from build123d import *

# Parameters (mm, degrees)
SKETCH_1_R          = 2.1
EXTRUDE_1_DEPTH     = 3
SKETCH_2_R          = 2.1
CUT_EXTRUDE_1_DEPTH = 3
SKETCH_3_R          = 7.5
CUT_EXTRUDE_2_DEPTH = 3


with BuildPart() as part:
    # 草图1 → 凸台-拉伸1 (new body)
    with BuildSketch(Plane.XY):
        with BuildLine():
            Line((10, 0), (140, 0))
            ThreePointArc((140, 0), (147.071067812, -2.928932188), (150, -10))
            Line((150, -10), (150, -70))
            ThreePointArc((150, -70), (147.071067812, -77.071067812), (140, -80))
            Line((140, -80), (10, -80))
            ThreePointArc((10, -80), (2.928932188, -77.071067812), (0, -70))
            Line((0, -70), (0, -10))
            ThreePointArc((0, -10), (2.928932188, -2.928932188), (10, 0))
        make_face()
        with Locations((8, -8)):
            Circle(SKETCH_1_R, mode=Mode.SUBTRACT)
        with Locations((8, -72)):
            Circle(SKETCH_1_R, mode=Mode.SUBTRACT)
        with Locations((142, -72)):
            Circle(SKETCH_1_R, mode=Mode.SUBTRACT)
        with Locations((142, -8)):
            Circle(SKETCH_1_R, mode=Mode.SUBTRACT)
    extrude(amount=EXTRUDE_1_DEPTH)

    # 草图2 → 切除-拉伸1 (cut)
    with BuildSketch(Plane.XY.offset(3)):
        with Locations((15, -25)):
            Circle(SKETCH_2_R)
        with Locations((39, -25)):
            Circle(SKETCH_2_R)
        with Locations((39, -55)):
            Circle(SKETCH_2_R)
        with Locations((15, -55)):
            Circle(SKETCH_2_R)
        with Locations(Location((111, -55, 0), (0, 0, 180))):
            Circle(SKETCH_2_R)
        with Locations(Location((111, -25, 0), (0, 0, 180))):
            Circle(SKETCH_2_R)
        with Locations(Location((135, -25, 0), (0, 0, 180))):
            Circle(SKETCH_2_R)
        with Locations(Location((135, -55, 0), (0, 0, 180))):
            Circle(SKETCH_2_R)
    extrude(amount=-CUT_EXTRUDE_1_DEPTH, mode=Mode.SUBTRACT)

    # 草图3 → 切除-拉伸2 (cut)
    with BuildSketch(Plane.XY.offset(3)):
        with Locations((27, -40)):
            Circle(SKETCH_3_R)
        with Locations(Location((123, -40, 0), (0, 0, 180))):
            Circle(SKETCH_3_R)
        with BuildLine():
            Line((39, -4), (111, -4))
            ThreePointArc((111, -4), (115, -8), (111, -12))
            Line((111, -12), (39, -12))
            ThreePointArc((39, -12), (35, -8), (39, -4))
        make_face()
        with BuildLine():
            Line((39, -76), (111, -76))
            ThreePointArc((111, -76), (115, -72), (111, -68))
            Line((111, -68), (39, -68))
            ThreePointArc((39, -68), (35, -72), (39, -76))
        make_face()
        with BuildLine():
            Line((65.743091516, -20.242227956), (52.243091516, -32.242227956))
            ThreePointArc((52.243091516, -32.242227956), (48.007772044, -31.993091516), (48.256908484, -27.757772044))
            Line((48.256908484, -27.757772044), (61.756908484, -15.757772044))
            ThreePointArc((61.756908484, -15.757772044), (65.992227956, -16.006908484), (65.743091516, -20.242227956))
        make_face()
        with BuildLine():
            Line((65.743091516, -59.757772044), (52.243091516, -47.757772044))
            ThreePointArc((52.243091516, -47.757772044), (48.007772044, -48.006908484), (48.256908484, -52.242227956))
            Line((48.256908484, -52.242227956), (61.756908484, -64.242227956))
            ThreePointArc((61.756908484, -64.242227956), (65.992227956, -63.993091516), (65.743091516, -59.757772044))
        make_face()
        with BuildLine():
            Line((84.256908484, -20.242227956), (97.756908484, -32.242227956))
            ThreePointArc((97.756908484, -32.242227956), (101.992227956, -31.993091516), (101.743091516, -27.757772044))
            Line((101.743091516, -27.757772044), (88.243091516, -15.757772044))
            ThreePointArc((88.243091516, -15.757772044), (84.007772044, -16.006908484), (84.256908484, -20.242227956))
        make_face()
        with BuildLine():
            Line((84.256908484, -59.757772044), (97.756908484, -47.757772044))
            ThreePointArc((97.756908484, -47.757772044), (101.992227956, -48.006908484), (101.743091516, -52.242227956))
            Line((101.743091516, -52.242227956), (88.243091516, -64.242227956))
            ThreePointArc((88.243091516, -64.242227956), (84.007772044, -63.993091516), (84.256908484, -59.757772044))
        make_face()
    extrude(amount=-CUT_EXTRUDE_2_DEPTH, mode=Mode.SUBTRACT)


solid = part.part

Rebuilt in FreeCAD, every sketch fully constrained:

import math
import FreeCAD as App
import Part
import Sketcher

doc = App.newDocument("Part")
body = doc.addObject("PartDesign::Body", "Body")

# Sketch on XY plane
sketch1 = doc.addObject("Sketcher::SketchObject", "Sketch")
body.addObject(sketch1)
sketch1.AttachmentSupport = (doc.XY_Plane, [""])
sketch1.MapMode = "FlatFace"
sketch1.addGeometry([
    Part.LineSegment(App.Vector(140, 0, 0), App.Vector(10, 0, 0)),  # 0
    Part.ArcOfCircle(Part.Circle(App.Vector(10, -10, 0), App.Vector(0, 0, 1), 10), math.radians(90), math.radians(180)),  # 1
    Part.LineSegment(App.Vector(0, -10, 0), App.Vector(0, -70, 0)),  # 2
    Part.ArcOfCircle(Part.Circle(App.Vector(10, -70, 0), App.Vector(0, 0, 1), 10), math.radians(180), math.radians(270)),  # 3
    Part.LineSegment(App.Vector(10, -80, 0), App.Vector(140, -80, 0)),  # 4
    Part.ArcOfCircle(Part.Circle(App.Vector(140, -70, 0), App.Vector(0, 0, 1), 10), math.radians(-90), math.radians(0)),  # 5
    Part.LineSegment(App.Vector(150, -70, 0), App.Vector(150, -10, 0)),  # 6
    Part.ArcOfCircle(Part.Circle(App.Vector(140, -10, 0), App.Vector(0, 0, 1), 10), math.radians(0), math.radians(90)),  # 7
    Part.Circle(App.Vector(142, -72, 0), App.Vector(0, 0, 1), 2.1),  # 8
    Part.Circle(App.Vector(8, -72, 0), App.Vector(0, 0, 1), 2.1),  # 9
    Part.Circle(App.Vector(142, -8, 0), App.Vector(0, 0, 1), 2.1),  # 10
    Part.Circle(App.Vector(8, -8, 0), App.Vector(0, 0, 1), 2.1),  # 11
], False)
sketch1.addConstraint([
    Sketcher.Constraint("Tangent", 0, 2, 1, 1),
    Sketcher.Constraint("Tangent", 1, 2, 2, 1),
    Sketcher.Constraint("Tangent", 2, 2, 3, 1),
    Sketcher.Constraint("Tangent", 3, 2, 4, 1),
    Sketcher.Constraint("Tangent", 4, 2, 5, 1),
    Sketcher.Constraint("Tangent", 5, 2, 6, 1),
    Sketcher.Constraint("Tangent", 6, 2, 7, 1),
    Sketcher.Constraint("Tangent", 7, 2, 0, 1),
    Sketcher.Constraint("Horizontal", 0),
    Sketcher.Constraint("Vertical", 2),
    Sketcher.Constraint("Horizontal", 4),
    Sketcher.Constraint("Vertical", 6),
    Sketcher.Constraint("Equal", 1, 3),
    Sketcher.Constraint("Equal", 3, 5),
    Sketcher.Constraint("Equal", 5, 7),
    Sketcher.Constraint("Equal", 8, 9),
    Sketcher.Constraint("Equal", 9, 10),
    Sketcher.Constraint("Equal", 10, 11),
    Sketcher.Constraint("PointOnObject", 0, 2, -1),
    Sketcher.Constraint("PointOnObject", 1, 2, -2),
    Sketcher.Constraint("Horizontal", 8, 3, 9, 3),
    Sketcher.Constraint("Horizontal", 10, 3, 11, 3),
    Sketcher.Constraint("Vertical", 8, 3, 10, 3),
    Sketcher.Constraint("Vertical", 9, 3, 11, 3),
    Sketcher.Constraint("Radius", 1, 10.0),
    Sketcher.Constraint("Diameter", 8, 4.2),
    Sketcher.Constraint("DistanceX", 0, 2, 0, 1, 130.0),
    Sketcher.Constraint("DistanceY", 2, 2, 2, 1, 60.0),
    Sketcher.Constraint("DistanceX", -1, 1, 8, 3, 142.0),
    Sketcher.Constraint("DistanceY", 8, 3, -1, 1, 72.0),
    Sketcher.Constraint("DistanceX", -1, 1, 9, 3, 8.0),
    Sketcher.Constraint("DistanceY", 10, 3, -1, 1, 8.0),
])
pad1 = doc.addObject("PartDesign::Pad", "Pad")
body.addObject(pad1)
pad1.Profile = sketch1
pad1.Length = 3

# Sketch on XY plane
sketch2 = doc.addObject("Sketcher::SketchObject", "Sketch001")
body.addObject(sketch2)
sketch2.AttachmentSupport = (doc.XY_Plane, [""])
sketch2.MapMode = "FlatFace"
sketch2.AttachmentOffset = App.Placement(App.Vector(0, 0, 3), App.Rotation())
sketch2.addGeometry([
    Part.Circle(App.Vector(15, -25, 0), App.Vector(0, 0, 1), 2.1),  # 0
    Part.Circle(App.Vector(39, -25, 0), App.Vector(0, 0, 1), 2.1),  # 1
    Part.Circle(App.Vector(39, -55, 0), App.Vector(0, 0, 1), 2.1),  # 2
    Part.Circle(App.Vector(15, -55, 0), App.Vector(0, 0, 1), 2.1),  # 3
    Part.Circle(App.Vector(111, -55, 0), App.Vector(0, 0, 1), 2.1),  # 4
    Part.Circle(App.Vector(111, -25, 0), App.Vector(0, 0, 1), 2.1),  # 5
    Part.Circle(App.Vector(135, -25, 0), App.Vector(0, 0, 1), 2.1),  # 6
    Part.Circle(App.Vector(135, -55, 0), App.Vector(0, 0, 1), 2.1),  # 7
], False)
sketch2.addConstraint([
    Sketcher.Constraint("Equal", 0, 1),
    Sketcher.Constraint("Equal", 1, 2),
    Sketcher.Constraint("Equal", 2, 3),
    Sketcher.Constraint("Equal", 3, 4),
    Sketcher.Constraint("Equal", 4, 5),
    Sketcher.Constraint("Equal", 5, 6),
    Sketcher.Constraint("Equal", 6, 7),
    Sketcher.Constraint("Horizontal", 0, 3, 1, 3),
    Sketcher.Constraint("Horizontal", 2, 3, 3, 3),
    Sketcher.Constraint("Horizontal", 3, 3, 4, 3),
    Sketcher.Constraint("Horizontal", 1, 3, 5, 3),
    Sketcher.Constraint("Horizontal", 5, 3, 6, 3),
    Sketcher.Constraint("Horizontal", 4, 3, 7, 3),
    Sketcher.Constraint("Vertical", 1, 3, 2, 3),
    Sketcher.Constraint("Vertical", 0, 3, 3, 3),
    Sketcher.Constraint("Vertical", 4, 3, 5, 3),
    Sketcher.Constraint("Vertical", 6, 3, 7, 3),
    Sketcher.Constraint("Diameter", 0, 4.2),
    Sketcher.Constraint("DistanceX", -1, 1, 0, 3, 15.0),
    Sketcher.Constraint("DistanceY", 0, 3, -1, 1, 25.0),
    Sketcher.Constraint("DistanceX", -1, 1, 1, 3, 39.0),
    Sketcher.Constraint("DistanceY", 2, 3, -1, 1, 55.0),
    Sketcher.Constraint("DistanceX", -1, 1, 4, 3, 111.0),
    Sketcher.Constraint("DistanceX", -1, 1, 6, 3, 135.0),
])
pocket1 = doc.addObject("PartDesign::Pocket", "Pocket")
body.addObject(pocket1)
pocket1.Profile = sketch2
pocket1.Length = 3

# Sketch on XY plane
sketch3 = doc.addObject("Sketcher::SketchObject", "Sketch002")
body.addObject(sketch3)
sketch3.AttachmentSupport = (doc.XY_Plane, [""])
sketch3.MapMode = "FlatFace"
sketch3.AttachmentOffset = App.Placement(App.Vector(0, 0, 3), App.Rotation())
sketch3.addGeometry([
    Part.Circle(App.Vector(27, -40, 0), App.Vector(0, 0, 1), 7.5),  # 0
    Part.Circle(App.Vector(123, -40, 0), App.Vector(0, 0, 1), 7.5),  # 1
    Part.LineSegment(App.Vector(111, -4, 0), App.Vector(39, -4, 0)),  # 2
    Part.ArcOfCircle(Part.Circle(App.Vector(39, -8, 0), App.Vector(0, 0, 1), 4), math.radians(90), math.radians(270)),  # 3
    Part.LineSegment(App.Vector(39, -12, 0), App.Vector(111, -12, 0)),  # 4
    Part.ArcOfCircle(Part.Circle(App.Vector(111, -8, 0), App.Vector(0, 0, 1), 4), math.radians(-90), math.radians(90)),  # 5
    Part.LineSegment(App.Vector(39, -76, 0), App.Vector(111, -76, 0)),  # 6
    Part.ArcOfCircle(Part.Circle(App.Vector(111, -72, 0), App.Vector(0, 0, 1), 4), math.radians(-90), math.radians(90)),  # 7
    Part.LineSegment(App.Vector(111, -68, 0), App.Vector(39, -68, 0)),  # 8
    Part.ArcOfCircle(Part.Circle(App.Vector(39, -72, 0), App.Vector(0, 0, 1), 4), math.radians(90), math.radians(270)),  # 9
    Part.LineSegment(App.Vector(52.243092, -32.242228, 0), App.Vector(65.743092, -20.242228, 0)),  # 10
    Part.ArcOfCircle(Part.Circle(App.Vector(63.75, -18, 0), App.Vector(0, 0, 1), 3), math.radians(-48.366461), math.radians(131.633539)),  # 11
    Part.LineSegment(App.Vector(61.756908, -15.757772, 0), App.Vector(48.256908, -27.757772, 0)),  # 12
    Part.ArcOfCircle(Part.Circle(App.Vector(50.25, -30, 0), App.Vector(0, 0, 1), 3), math.radians(131.633539), math.radians(311.633539)),  # 13
    Part.LineSegment(App.Vector(65.743092, -59.757772, 0), App.Vector(52.243092, -47.757772, 0)),  # 14
    Part.ArcOfCircle(Part.Circle(App.Vector(50.25, -50, 0), App.Vector(0, 0, 1), 3), math.radians(48.366461), math.radians(228.366461)),  # 15
    Part.LineSegment(App.Vector(48.256908, -52.242228, 0), App.Vector(61.756908, -64.242228, 0)),  # 16
    Part.ArcOfCircle(Part.Circle(App.Vector(63.75, -62, 0), App.Vector(0, 0, 1), 3), math.radians(-131.633539), math.radians(48.366461)),  # 17
    Part.LineSegment(App.Vector(84.256908, -20.242228, 0), App.Vector(97.756908, -32.242228, 0)),  # 18
    Part.ArcOfCircle(Part.Circle(App.Vector(99.75, -30, 0), App.Vector(0, 0, 1), 3), math.radians(-131.633539), math.radians(48.366461)),  # 19
    Part.LineSegment(App.Vector(101.743092, -27.757772, 0), App.Vector(88.243092, -15.757772, 0)),  # 20
    Part.ArcOfCircle(Part.Circle(App.Vector(86.25, -18, 0), App.Vector(0, 0, 1), 3), math.radians(48.366461), math.radians(228.366461)),  # 21
    Part.LineSegment(App.Vector(97.756908, -47.757772, 0), App.Vector(84.256908, -59.757772, 0)),  # 22
    Part.ArcOfCircle(Part.Circle(App.Vector(86.25, -62, 0), App.Vector(0, 0, 1), 3), math.radians(131.633539), math.radians(311.633539)),  # 23
    Part.LineSegment(App.Vector(88.243092, -64.242228, 0), App.Vector(101.743092, -52.242228, 0)),  # 24
    Part.ArcOfCircle(Part.Circle(App.Vector(99.75, -50, 0), App.Vector(0, 0, 1), 3), math.radians(-48.366461), math.radians(131.633539)),  # 25
], False)
sketch3.addConstraint([
    Sketcher.Constraint("Tangent", 2, 2, 3, 1),
    Sketcher.Constraint("Tangent", 3, 2, 4, 1),
    Sketcher.Constraint("Tangent", 4, 2, 5, 1),
    Sketcher.Constraint("Tangent", 5, 2, 2, 1),
    Sketcher.Constraint("Tangent", 6, 2, 7, 1),
    Sketcher.Constraint("Tangent", 7, 2, 8, 1),
    Sketcher.Constraint("Tangent", 8, 2, 9, 1),
    Sketcher.Constraint("Tangent", 9, 2, 6, 1),
    Sketcher.Constraint("Tangent", 10, 2, 11, 1),
    Sketcher.Constraint("Tangent", 11, 2, 12, 1),
    Sketcher.Constraint("Tangent", 12, 2, 13, 1),
    Sketcher.Constraint("Tangent", 13, 2, 10, 1),
    Sketcher.Constraint("Tangent", 14, 2, 15, 1),
    Sketcher.Constraint("Tangent", 15, 2, 16, 1),
    Sketcher.Constraint("Tangent", 16, 2, 17, 1),
    Sketcher.Constraint("Tangent", 17, 2, 14, 1),
    Sketcher.Constraint("Tangent", 18, 2, 19, 1),
    Sketcher.Constraint("Tangent", 19, 2, 20, 1),
    Sketcher.Constraint("Tangent", 20, 2, 21, 1),
    Sketcher.Constraint("Tangent", 21, 2, 18, 1),
    Sketcher.Constraint("Tangent", 22, 2, 23, 1),
    Sketcher.Constraint("Tangent", 23, 2, 24, 1),
    Sketcher.Constraint("Tangent", 24, 2, 25, 1),
    Sketcher.Constraint("Tangent", 25, 2, 22, 1),
    Sketcher.Constraint("Horizontal", 2),
    Sketcher.Constraint("Horizontal", 4),
    Sketcher.Constraint("Horizontal", 6),
    Sketcher.Constraint("Horizontal", 8),
    Sketcher.Constraint("Equal", 0, 1),
    Sketcher.Constraint("Equal", 5, 7),
    Sketcher.Constraint("Equal", 11, 13),
    Sketcher.Constraint("Equal", 13, 15),
    Sketcher.Constraint("Equal", 15, 17),
    Sketcher.Constraint("Equal", 17, 19),
    Sketcher.Constraint("Equal", 19, 21),
    Sketcher.Constraint("Equal", 21, 23),
    Sketcher.Constraint("Equal", 23, 25),
    Sketcher.Constraint("Parallel", 16, 18),
    Sketcher.Constraint("Parallel", 12, 22),
    Sketcher.Constraint("Horizontal", 0, 3, 1, 3),
    Sketcher.Constraint("Horizontal", 13, 3, 19, 3),
    Sketcher.Constraint("Horizontal", 11, 3, 21, 3),
    Sketcher.Constraint("Horizontal", 17, 3, 23, 3),
    Sketcher.Constraint("Horizontal", 15, 3, 25, 3),
    Sketcher.Constraint("Horizontal", 13, 2, 18, 2),
    Sketcher.Constraint("Vertical", 5, 3, 7, 3),
    Sketcher.Constraint("Vertical", 3, 3, 9, 3),
    Sketcher.Constraint("Vertical", 13, 3, 15, 3),
    Sketcher.Constraint("Vertical", 11, 3, 17, 3),
    Sketcher.Constraint("Vertical", 21, 3, 23, 3),
    Sketcher.Constraint("Diameter", 0, 15.0),
    Sketcher.Constraint("Radius", 3, 4.0),
    Sketcher.Constraint("Radius", 11, 3.0),
    Sketcher.Constraint("DistanceX", 2, 2, 2, 1, 72.0),
    Sketcher.Constraint("DistanceX", -1, 1, 0, 3, 27.0),
    Sketcher.Constraint("DistanceY", 0, 3, -1, 1, 40.0),
    Sketcher.Constraint("DistanceX", -1, 1, 1, 3, 123.0),
    Sketcher.Constraint("DistanceX", -1, 1, 3, 3, 39.0),
    Sketcher.Constraint("DistanceY", 3, 3, -1, 1, 8.0),
    Sketcher.Constraint("DistanceY", 7, 3, -1, 1, 72.0),
    Sketcher.Constraint("DistanceY", 11, 3, -1, 1, 18.0),
    Sketcher.Constraint("DistanceY", 13, 3, -1, 1, 30.0),
    Sketcher.Constraint("DistanceY", 15, 3, -1, 1, 50.0),
    Sketcher.Constraint("DistanceX", 11, 3, 19, 3, 36.0),
    Sketcher.Constraint("DistanceX", 13, 3, 11, 3, 13.5),
    Sketcher.Constraint("DistanceX", -1, 1, 11, 3, 63.75),
])
pocket2 = doc.addObject("PartDesign::Pocket", "Pocket001")
body.addObject(pocket2)
pocket2.Profile = sketch3
pocket2.Length = 3

doc.recompute()
